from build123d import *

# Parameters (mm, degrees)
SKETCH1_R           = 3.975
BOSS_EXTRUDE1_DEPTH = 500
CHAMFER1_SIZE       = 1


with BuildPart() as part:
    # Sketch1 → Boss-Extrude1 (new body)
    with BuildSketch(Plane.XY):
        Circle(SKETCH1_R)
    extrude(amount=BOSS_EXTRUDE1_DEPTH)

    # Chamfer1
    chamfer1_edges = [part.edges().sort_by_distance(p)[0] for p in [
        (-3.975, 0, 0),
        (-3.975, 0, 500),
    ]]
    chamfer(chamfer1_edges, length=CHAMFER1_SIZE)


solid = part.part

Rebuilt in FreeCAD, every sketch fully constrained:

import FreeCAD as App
import Part
import Sketcher

V = App.Vector
Q = App.Units.Quantity


def edges_at(feature, points):
    """Names of the edges that pass closest to the given points."""
    edges = feature.Shape.Edges
    near = lambda p: min(range(len(edges)), key=lambda i: edges[i].distToShape(Part.Vertex(*p))[0])
    return sorted({f"Edge{near(p) + 1}" for p in points})

doc = App.newDocument("Part")
body = doc.addObject("PartDesign::Body", "Body")

# Sketch on XY plane
sketch1 = body.newObject("Sketcher::SketchObject", "Sketch")
sketch1.AttachmentSupport = (doc.getObject("XY_Plane"), [""])
sketch1.MapMode = "FlatFace"
sketch1.addGeometry(Part.Circle(V(0, 0, 0), V(0, 0, 1), 4), False)
sketch1.addConstraint([
    Sketcher.Constraint("Coincident", 0, 3, -1, 1),
    Sketcher.Constraint("Diameter", 0, Q("7.95 mm")),
])
pad1 = body.newObject("PartDesign::Pad", "Pad")
pad1.Profile = sketch1
pad1.Length = 500
doc.recompute()

chamfer = body.newObject("PartDesign::Chamfer", "Chamfer")
chamfer.Base = (pad1, edges_at(pad1, [(-3.975, 0, 0), (-3.975, 0, 500)]))
chamfer.Size = 1

doc.recompute()
